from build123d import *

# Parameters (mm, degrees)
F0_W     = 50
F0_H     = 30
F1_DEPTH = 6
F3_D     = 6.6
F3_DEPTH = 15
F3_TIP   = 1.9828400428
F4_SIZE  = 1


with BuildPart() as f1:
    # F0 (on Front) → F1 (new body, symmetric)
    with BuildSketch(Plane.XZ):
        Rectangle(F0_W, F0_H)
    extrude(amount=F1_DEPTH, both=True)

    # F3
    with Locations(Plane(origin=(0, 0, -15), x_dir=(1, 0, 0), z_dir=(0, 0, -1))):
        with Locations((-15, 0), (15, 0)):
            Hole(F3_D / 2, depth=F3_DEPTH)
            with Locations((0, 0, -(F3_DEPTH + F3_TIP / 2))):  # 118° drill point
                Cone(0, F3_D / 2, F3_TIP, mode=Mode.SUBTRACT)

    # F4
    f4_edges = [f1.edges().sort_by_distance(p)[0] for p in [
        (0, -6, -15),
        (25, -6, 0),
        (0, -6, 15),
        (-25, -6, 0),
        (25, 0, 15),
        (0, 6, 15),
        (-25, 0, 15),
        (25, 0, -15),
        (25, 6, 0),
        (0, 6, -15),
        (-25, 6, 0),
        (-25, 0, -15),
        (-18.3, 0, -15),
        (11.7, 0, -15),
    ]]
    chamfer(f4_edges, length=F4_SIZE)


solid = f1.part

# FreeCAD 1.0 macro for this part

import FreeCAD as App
import Part
import Sketcher

V = App.Vector
Q = App.Units.Quantity


def edges_at(feature, points):
    """Names of the edges that pass closest to the given points."""
    edges = feature.Shape.Edges
    near = lambda p: min(range(len(edges)), key=lambda i: edges[i].distToShape(Part.Vertex(*p))[0])
    return sorted({f"Edge{near(p) + 1}" for p in points})

doc = App.newDocument("Part")
body = doc.addObject("PartDesign::Body", "Body")

sketch1 = body.newObject("Sketcher::SketchObject", "Sketch")
sketch1.AttachmentSupport = (doc.getObject("XZ_Plane"), [""])
sketch1.MapMode = "FlatFace"
sketch1.addGeometry(Part.LineSegment(V(-25, 15, 0), V(-25, -15, 0)), False)
sketch1.addGeometry(Part.LineSegment(V(-25, -15, 0), V(25, -15, 0)), False)
sketch1.addGeometry(Part.LineSegment(V(25, -15, 0), V(25, 15, 0)), False)
sketch1.addGeometry(Part.LineSegment(V(25, 15, 0), V(-25, 15, 0)), False)
sketch1.addConstraint(Sketcher.Constraint("Coincident", 0, 2, 1, 1))
sketch1.addConstraint(Sketcher.Constraint("Coincident", 1, 2, 2, 1))
sketch1.addConstraint(Sketcher.Constraint("Coincident", 2, 2, 3, 1))
sketch1.addConstraint(Sketcher.Constraint("Coincident", 3, 2, 0, 1))
sketch1.addConstraint(Sketcher.Constraint("Vertical", 0))
sketch1.addConstraint(Sketcher.Constraint("Horizontal", 1))
sketch1.addConstraint(Sketcher.Constraint("Vertical", 2))
sketch1.addConstraint(Sketcher.Constraint("Horizontal", 3))
sketch1.addConstraint(Sketcher.Constraint("Symmetric", 0, 2, 2, 2, -1, 1))
sketch1.addConstraint(Sketcher.Constraint("DistanceX", 1, 1, 1, 2, Q("50 mm")))
sketch1.addConstraint(Sketcher.Constraint("DistanceY", 0, 2, 0, 1, Q("30 mm")))
pad1 = body.newObject("PartDesign::Pad", "Pad")
pad1.Profile = sketch1
pad1.Length = 12
pad1.Midplane = True

sketch2 = body.newObject("Sketcher::SketchObject", "Sketch001")
sketch2.AttachmentSupport = (doc.getObject("XY_Plane"), [""])
sketch2.MapMode = "FlatFace"
sketch2.AttachmentOffset = App.Placement(V(0, 0, -15), App.Rotation())
sketch2.addGeometry(Part.Circle(V(-15, 0, 0), V(0, 0, 1), 3.3), False)
sketch2.addGeometry(Part.Circle(V(15, 0, 0), V(0, 0, 1), 3.3), False)
sketch2.addConstraint(Sketcher.Constraint("Equal", 0, 1))
sketch2.addConstraint(Sketcher.Constraint("Symmetric", 0, 3, 1, 3, -1, 1))
sketch2.addConstraint(Sketcher.Constraint("PointOnObject", 0, 3, -1))
sketch2.addConstraint(Sketcher.Constraint("Diameter", 0, Q("6.6 mm")))
sketch2.addConstraint(Sketcher.Constraint("DistanceX", 0, 3, -1, 1, Q("15 mm")))
doc.recompute()
hole = body.newObject("PartDesign::Hole", "Hole")
hole.Profile = sketch2
hole.ThreadType = "None"
hole.Diameter = 6.6
hole.DepthType = "Dimension"
hole.Depth = 15
hole.DrillPoint = "Angled"
hole.DrillPointAngle = 118
hole.Reversed = True
doc.recompute()

chamfer = body.newObject("PartDesign::Chamfer", "Chamfer")
chamfer.Base = (hole, edges_at(hole, [
    (0, -6, -15),
    (25, -6, 0),
    (0, -6, 15),
    (-25, -6, 0),
    (25, 0, 15),
    (0, 6, 15),
    (-25, 0, 15),
    (25, 0, -15),
    (25, 6, 0),
    (0, 6, -15),
    (-25, 6, 0),
    (-25, 0, -15),
    (-11.7, 0, -15),
    (18.3, 0, -15),
]))
chamfer.Size = 1

doc.recompute()
